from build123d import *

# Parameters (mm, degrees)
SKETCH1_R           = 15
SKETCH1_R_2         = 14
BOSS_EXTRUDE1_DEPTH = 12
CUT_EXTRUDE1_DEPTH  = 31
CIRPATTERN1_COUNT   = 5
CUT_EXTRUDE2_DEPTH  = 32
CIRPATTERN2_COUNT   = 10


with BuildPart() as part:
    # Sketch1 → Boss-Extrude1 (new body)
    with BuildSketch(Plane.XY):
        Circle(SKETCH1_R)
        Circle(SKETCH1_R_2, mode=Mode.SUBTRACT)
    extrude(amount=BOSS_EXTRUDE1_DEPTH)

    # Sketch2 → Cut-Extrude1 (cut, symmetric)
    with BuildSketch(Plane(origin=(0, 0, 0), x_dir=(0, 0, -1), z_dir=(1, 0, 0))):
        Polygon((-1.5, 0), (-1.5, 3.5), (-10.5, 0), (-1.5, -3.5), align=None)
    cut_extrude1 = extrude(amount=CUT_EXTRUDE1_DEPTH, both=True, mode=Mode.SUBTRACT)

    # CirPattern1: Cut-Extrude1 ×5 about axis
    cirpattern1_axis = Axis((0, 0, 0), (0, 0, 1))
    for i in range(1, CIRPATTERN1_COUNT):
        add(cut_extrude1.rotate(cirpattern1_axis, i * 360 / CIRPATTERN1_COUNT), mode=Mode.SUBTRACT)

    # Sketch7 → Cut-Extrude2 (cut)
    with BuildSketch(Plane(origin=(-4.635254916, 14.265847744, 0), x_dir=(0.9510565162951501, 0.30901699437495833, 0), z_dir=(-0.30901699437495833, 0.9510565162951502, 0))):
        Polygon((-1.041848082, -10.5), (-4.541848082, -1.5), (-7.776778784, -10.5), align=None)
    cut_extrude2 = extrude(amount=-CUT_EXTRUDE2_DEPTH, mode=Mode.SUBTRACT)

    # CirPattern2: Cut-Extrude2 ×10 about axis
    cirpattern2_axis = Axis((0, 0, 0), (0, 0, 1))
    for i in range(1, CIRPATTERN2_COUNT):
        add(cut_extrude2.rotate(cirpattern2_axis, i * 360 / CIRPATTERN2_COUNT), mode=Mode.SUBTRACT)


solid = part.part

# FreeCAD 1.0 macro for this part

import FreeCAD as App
import Part
import Sketcher
from FreeCAD import Vector
Q = App.Units.Quantity


def add_polygon(sketch, points):
    """Adds a closed chain of lines whose ends are joined by coincident constraints."""
    first, n = sketch.GeometryCount, len(points)
    for a, b in zip(points, points[1:] + points[:1]):
        sketch.addGeometry(Part.LineSegment(App.Vector(*a, 0), App.Vector(*b, 0)), False)
    for i in range(n):
        sketch.addConstraint(Sketcher.Constraint("Coincident", first + i, 2, first + (i + 1) % n, 1))

doc = App.newDocument("Part")
params = doc.addObject("Spreadsheet::Sheet", "Params")
for row, (alias, value) in enumerate([
    ("sketch1_diameter", "30 mm"),
    ("sketch1_diameter2", "28 mm"),
    ("pad1_length", "12 mm"),
    ("sketch2_width", "7 mm"),
    ("pocket1_length", "62 mm"),
    ("pocket2_length", "32 mm"),
], start=1):
    params.set(f"A{row}", alias)
    params.set(f"B{row}", "=" + value)
    params.setAlias(f"B{row}", alias)

body = doc.addObject("PartDesign::Body", "Body")

# Sketch on XY plane
sketch1 = body.newObject("Sketcher::SketchObject", "Sketch")
sketch1.AttachmentSupport = (doc.getObject("XY_Plane"), [""])
sketch1.MapMode = "FlatFace"
sketch1.addGeometry(Part.Circle(Vector(0, 0, 0), Vector(0, 0, 1), 15), False)
sketch1.addGeometry(Part.Circle(Vector(0, 0, 0), Vector(0, 0, 1), 14), False)
sketch1.addConstraint(Sketcher.Constraint("Coincident", 0, 3, -1, 1))
sketch1.addConstraint(Sketcher.Constraint("Coincident", 1, 3, -1, 1))
sketch1.addConstraint(Sketcher.Constraint("Diameter", 0, Q("30 mm")))
sketch1.addConstraint(Sketcher.Constraint("Diameter", 1, Q("28 mm")))
sketch1.setExpression("Constraints[2]", "Params.sketch1_diameter")
sketch1.setExpression("Constraints[3]", "Params.sketch1_diameter2")
pad1 = body.newObject("PartDesign::Pad", "Pad")
pad1.Profile = sketch1
pad1.setExpression("Length", "Params.pad1_length")

# Sketch on YZ plane
sketch2 = body.newObject("Sketcher::SketchObject", "Sketch001")
sketch2.AttachmentSupport = (doc.getObject("YZ_Plane"), [""])
sketch2.MapMode = "FlatFace"
add_polygon(sketch2, [(4, 2), (0, 10), (-4, 2)])  # lines 0-2
sketch2.addConstraint(Sketcher.Constraint("Horizontal", 2))
sketch2.addConstraint(Sketcher.Constraint("PointOnObject", 0, 2, -2))
sketch2.addConstraint(Sketcher.Constraint("Equal", 0, 1))
sketch2.addConstraint(Sketcher.Constraint("DistanceX", 2, 1, 2, 2, Q("7 mm")))
sketch2.addConstraint(Sketcher.Constraint("DistanceY", 1, 2, 0, 2, Q("9 mm")))
sketch2.addConstraint(Sketcher.Constraint("DistanceY", -1, 1, 0, 2, Q("10.5 mm")))
sketch2.setExpression("Constraints[6]", "Params.sketch2_width")
pocket1 = body.newObject("PartDesign::Pocket", "Pocket")
pocket1.Profile = sketch2
pocket1.setExpression("Length", "Params.pocket1_length")
pocket1.Midplane = True
doc.recompute()

polarpattern = body.newObject("PartDesign::PolarPattern", "PolarPattern")
polarpattern.Originals = [pocket1]
polarpattern.Axis = (doc.getObject("Z_Axis"), [""])
polarpattern.Angle = 360
polarpattern.Occurrences = 5
body.Tip = polarpattern

# Sketch on an angled plane
sketch3 = body.newObject("Sketcher::SketchObject", "Sketch002")
sketch3.Placement = App.Placement(Vector(-4.635255, 14.265848, 0), App.Rotation(Vector(0.951056516, 0.309016994, 0), Vector(0, 0, -0.999999999), Vector(-0.309016994, 0.951056516, 0), "ZXY"))
add_polygon(sketch3, [(-1, -10), (-5, -1), (-8, -10)])  # lines 0-2
sketch3.addConstraint(Sketcher.Constraint("Horizontal", 2))
sketch3.addConstraint(Sketcher.Constraint("DistanceY", 1, 2, 0, 2, Q("9 mm")))
sketch3.addConstraint(Sketcher.Constraint("DistanceY", 0, 2, -1, 1, Q("1.5 mm")))
sketch3.addConstraint(Sketcher.Constraint("DistanceX", 0, 2, 2, 2, Q("3.5 mm")))
sketch3.addConstraint(Sketcher.Constraint("DistanceX", 2, 1, 2, 2, Q("6.734931 mm")))
sketch3.addConstraint(Sketcher.Constraint("DistanceX", 0, 2, -1, 1, Q("4.541848 mm")))
pocket2 = body.newObject("PartDesign::Pocket", "Pocket001")
pocket2.Profile = sketch3
pocket2.setExpression("Length", "Params.pocket2_length")
doc.recompute()

polarpattern2 = body.newObject("PartDesign::PolarPattern", "PolarPattern001")
polarpattern2.Originals = [pocket2]
polarpattern2.Axis = (doc.getObject("Z_Axis"), [""])
polarpattern2.Angle = 360
polarpattern2.Occurrences = 10
body.Tip = polarpattern2

doc.recompute()
